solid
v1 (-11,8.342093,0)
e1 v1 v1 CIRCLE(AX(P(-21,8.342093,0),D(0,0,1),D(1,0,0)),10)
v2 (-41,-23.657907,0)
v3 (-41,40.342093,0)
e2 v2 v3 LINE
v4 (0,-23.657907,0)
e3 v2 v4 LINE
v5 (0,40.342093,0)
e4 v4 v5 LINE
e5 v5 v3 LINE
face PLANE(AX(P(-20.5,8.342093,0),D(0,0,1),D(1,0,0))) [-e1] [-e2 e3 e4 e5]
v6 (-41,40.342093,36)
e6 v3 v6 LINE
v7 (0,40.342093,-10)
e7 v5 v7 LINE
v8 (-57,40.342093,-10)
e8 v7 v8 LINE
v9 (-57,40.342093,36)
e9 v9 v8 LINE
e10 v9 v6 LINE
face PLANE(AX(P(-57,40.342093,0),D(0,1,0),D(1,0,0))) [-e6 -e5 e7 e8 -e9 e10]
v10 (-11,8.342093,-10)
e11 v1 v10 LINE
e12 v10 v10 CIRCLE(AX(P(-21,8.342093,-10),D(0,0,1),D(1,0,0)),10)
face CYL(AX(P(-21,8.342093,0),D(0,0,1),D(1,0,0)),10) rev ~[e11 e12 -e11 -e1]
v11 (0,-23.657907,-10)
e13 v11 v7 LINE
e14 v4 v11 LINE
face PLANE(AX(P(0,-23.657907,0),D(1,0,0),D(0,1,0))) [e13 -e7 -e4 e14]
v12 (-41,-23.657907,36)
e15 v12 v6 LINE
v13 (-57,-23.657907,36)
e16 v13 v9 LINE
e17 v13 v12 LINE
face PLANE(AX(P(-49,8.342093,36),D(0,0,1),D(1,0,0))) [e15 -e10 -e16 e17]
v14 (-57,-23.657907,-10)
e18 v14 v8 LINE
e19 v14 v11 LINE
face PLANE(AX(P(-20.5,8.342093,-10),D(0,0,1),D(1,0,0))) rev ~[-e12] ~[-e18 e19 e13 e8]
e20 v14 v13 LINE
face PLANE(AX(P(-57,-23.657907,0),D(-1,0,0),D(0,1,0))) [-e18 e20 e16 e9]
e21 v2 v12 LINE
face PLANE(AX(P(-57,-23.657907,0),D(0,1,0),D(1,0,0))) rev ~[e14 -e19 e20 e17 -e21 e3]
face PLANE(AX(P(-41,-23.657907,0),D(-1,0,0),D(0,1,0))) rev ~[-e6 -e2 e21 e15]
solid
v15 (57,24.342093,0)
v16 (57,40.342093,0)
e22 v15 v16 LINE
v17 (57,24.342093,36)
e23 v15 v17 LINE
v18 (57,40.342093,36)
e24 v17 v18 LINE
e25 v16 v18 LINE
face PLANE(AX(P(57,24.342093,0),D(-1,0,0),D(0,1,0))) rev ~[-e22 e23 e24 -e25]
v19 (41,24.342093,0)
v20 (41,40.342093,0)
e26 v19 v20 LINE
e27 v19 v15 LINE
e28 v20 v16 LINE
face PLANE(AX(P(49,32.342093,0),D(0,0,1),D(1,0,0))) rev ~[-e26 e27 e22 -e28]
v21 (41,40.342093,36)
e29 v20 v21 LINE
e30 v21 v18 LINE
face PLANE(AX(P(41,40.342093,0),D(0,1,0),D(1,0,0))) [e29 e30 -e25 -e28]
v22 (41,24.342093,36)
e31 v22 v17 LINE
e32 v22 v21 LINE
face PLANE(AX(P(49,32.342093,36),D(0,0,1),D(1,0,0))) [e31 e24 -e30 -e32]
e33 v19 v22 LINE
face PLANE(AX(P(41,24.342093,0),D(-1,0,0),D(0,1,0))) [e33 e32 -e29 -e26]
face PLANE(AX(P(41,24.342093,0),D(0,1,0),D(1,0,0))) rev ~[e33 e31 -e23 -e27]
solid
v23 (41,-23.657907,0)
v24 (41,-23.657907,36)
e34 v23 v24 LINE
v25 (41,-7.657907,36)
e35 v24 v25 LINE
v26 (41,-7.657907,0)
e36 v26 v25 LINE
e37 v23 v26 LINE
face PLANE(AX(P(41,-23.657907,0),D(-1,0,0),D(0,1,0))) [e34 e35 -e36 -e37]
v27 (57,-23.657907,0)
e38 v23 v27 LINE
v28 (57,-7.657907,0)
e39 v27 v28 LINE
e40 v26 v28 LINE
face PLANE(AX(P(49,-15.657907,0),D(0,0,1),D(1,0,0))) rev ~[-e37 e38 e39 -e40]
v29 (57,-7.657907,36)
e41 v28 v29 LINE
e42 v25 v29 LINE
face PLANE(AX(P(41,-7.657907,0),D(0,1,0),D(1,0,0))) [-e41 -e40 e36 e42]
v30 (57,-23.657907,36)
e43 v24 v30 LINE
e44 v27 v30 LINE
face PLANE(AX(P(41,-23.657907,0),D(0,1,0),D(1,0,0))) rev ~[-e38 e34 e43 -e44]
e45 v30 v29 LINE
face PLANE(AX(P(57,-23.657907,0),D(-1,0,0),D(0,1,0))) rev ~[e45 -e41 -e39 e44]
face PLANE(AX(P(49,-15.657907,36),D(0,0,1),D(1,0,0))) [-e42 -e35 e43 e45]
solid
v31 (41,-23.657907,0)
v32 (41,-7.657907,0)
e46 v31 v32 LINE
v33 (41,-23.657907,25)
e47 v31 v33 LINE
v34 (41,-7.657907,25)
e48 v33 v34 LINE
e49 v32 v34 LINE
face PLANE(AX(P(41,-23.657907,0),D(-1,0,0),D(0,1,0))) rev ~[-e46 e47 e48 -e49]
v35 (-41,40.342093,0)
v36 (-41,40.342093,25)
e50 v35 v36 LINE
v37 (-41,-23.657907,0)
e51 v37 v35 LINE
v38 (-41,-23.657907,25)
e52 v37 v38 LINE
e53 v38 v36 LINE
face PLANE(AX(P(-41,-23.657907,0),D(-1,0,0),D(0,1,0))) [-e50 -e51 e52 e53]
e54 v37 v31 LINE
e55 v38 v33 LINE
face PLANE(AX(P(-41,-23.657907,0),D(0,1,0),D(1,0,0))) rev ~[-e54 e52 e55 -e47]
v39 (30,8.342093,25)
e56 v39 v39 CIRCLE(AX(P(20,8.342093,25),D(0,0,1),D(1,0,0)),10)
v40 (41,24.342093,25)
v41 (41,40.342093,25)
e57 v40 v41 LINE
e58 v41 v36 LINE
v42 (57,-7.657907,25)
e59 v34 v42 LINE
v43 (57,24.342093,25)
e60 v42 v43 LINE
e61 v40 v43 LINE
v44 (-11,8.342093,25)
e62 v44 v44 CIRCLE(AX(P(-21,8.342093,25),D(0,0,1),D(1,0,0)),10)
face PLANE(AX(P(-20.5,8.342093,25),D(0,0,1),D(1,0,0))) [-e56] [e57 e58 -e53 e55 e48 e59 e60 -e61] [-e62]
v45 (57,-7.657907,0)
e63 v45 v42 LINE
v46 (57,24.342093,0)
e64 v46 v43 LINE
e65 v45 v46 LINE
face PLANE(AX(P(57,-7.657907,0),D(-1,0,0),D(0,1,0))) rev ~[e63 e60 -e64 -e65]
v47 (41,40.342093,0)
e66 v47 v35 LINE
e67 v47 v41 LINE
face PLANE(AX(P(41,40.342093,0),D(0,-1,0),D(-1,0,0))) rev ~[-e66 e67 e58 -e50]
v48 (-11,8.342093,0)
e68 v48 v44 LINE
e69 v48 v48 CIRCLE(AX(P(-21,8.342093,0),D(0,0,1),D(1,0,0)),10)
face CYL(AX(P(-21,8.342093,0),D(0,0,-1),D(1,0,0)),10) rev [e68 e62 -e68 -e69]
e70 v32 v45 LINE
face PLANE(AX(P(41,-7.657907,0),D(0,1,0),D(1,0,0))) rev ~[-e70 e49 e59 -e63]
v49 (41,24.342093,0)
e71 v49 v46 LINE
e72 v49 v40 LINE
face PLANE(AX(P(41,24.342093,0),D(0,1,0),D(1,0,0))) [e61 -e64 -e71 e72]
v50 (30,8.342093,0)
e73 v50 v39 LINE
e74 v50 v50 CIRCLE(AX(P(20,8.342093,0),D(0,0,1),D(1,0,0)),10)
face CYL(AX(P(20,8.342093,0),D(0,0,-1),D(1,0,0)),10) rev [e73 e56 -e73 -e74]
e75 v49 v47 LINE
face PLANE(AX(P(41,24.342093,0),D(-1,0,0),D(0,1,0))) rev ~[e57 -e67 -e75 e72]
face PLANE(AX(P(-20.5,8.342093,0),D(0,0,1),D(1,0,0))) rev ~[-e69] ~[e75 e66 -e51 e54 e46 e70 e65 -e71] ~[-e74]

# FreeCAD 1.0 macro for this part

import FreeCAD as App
import Part
import Sketcher
from FreeCAD import Vector
Q = App.Units.Quantity

doc = App.newDocument("Part")
body = doc.addObject("PartDesign::Body", "Body")

sketch1 = body.newObject("Sketcher::SketchObject", "Sketch")
sketch1.AttachmentSupport = (doc.getObject("XY_Plane"), [""])
sketch1.MapMode = "FlatFace"
sketch1.addGeometry([
    Part.LineSegment(Vector(0, -24, 0), Vector(0, 40, 0)),
    Part.LineSegment(Vector(0, 40, 0), Vector(-57, 40, 0)),
    Part.LineSegment(Vector(-57, 40, 0), Vector(-57, -24, 0)),
    Part.LineSegment(Vector(-57, -24, 0), Vector(0, -24, 0)),
    Part.Circle(Vector(-21, 8, 0), Vector(0, 0, 1), 10),
], False)
sketch1.addConstraint([
    Sketcher.Constraint("Coincident", 0, 2, 1, 1),
    Sketcher.Constraint("Coincident", 1, 2, 2, 1),
    Sketcher.Constraint("Coincident", 2, 2, 3, 1),
    Sketcher.Constraint("Coincident", 3, 2, 0, 1),
    Sketcher.Constraint("Vertical", 0),
    Sketcher.Constraint("Horizontal", 1),
    Sketcher.Constraint("Vertical", 2),
    Sketcher.Constraint("Horizontal", 3),
    Sketcher.Constraint("PointOnObject", 0, 2, -2),
    Sketcher.Constraint("Diameter", 4, Q("20 mm")),
    Sketcher.Constraint("DistanceX", 1, 2, 1, 1, Q("57 mm")),
    Sketcher.Constraint("DistanceY", 0, 1, 0, 2, Q("64 mm")),
    Sketcher.Constraint("DistanceX", 4, 3, -1, 1, Q("21 mm")),
    Sketcher.Constraint("DistanceY", 4, 3, 0, 2, Q("32 mm")),
    Sketcher.Constraint("DistanceY", -1, 1, 4, 3, Q("8.342093 mm")),
])
pad1 = body.newObject("PartDesign::Pad", "Pad")
pad1.Profile = sketch1
pad1.Length = 10
pad1.Reversed = True

sketch2 = body.newObject("Sketcher::SketchObject", "Sketch001")
sketch2.AttachmentSupport = (doc.getObject("XY_Plane"), [""])
sketch2.MapMode = "FlatFace"
sketch2.addGeometry([
    Part.LineSegment(Vector(-57, 40, 0), Vector(-57, -24, 0)),
    Part.LineSegment(Vector(-57, -24, 0), Vector(-41, -24, 0)),
    Part.LineSegment(Vector(-41, -24, 0), Vector(-41, 40, 0)),
    Part.LineSegment(Vector(-41, 40, 0), Vector(-57, 40, 0)),
], False)
sketch2.addConstraint([
    Sketcher.Constraint("Coincident", 0, 2, 1, 1),
    Sketcher.Constraint("Coincident", 1, 2, 2, 1),
    Sketcher.Constraint("Coincident", 2, 2, 3, 1),
    Sketcher.Constraint("Coincident", 3, 2, 0, 1),
    Sketcher.Constraint("Vertical", 0),
    Sketcher.Constraint("Horizontal", 1),
    Sketcher.Constraint("Vertical", 2),
    Sketcher.Constraint("Horizontal", 3),
    Sketcher.Constraint("DistanceX", 1, 1, 1, 2, Q("16 mm")),
    Sketcher.Constraint("DistanceY", 0, 2, 0, 1, Q("64 mm")),
    Sketcher.Constraint("DistanceX", 0, 2, -1, 1, Q("57 mm")),
    Sketcher.Constraint("DistanceY", 0, 2, -1, 1, Q("23.657907 mm")),
])
pad2 = body.newObject("PartDesign::Pad", "Pad001")
pad2.Profile = sketch2
pad2.Length = 36
body2 = doc.addObject("PartDesign::Body", "Body001")

sketch3 = body2.newObject("Sketcher::SketchObject", "Sketch002")
sketch3.AttachmentSupport = (doc.getObject("XY_Plane001"), [""])
sketch3.MapMode = "FlatFace"
sketch3.addGeometry([
    Part.LineSegment(Vector(41, 40, 0), Vector(41, 24, 0)),
    Part.LineSegment(Vector(41, 24, 0), Vector(57, 24, 0)),
    Part.LineSegment(Vector(57, 24, 0), Vector(57, 40, 0)),
    Part.LineSegment(Vector(57, 40, 0), Vector(41, 40, 0)),
], False)
sketch3.addConstraint([
    Sketcher.Constraint("Coincident", 0, 2, 1, 1),
    Sketcher.Constraint("Coincident", 1, 2, 2, 1),
    Sketcher.Constraint("Coincident", 2, 2, 3, 1),
    Sketcher.Constraint("Coincident", 3, 2, 0, 1),
    Sketcher.Constraint("Vertical", 0),
    Sketcher.Constraint("Horizontal", 1),
    Sketcher.Constraint("Vertical", 2),
    Sketcher.Constraint("Horizontal", 3),
    Sketcher.Constraint("Equal", 3, 0),
    Sketcher.Constraint("DistanceX", 1, 1, 1, 2, Q("16 mm")),
    Sketcher.Constraint("DistanceX", -1, 1, 0, 2, Q("41 mm")),
    Sketcher.Constraint("DistanceY", -1, 1, 0, 2, Q("24.342093 mm")),
])
pad3 = body2.newObject("PartDesign::Pad", "Pad002")
pad3.Profile = sketch3
pad3.Length = 36
body3 = doc.addObject("PartDesign::Body", "Body002")

sketch4 = body3.newObject("Sketcher::SketchObject", "Sketch003")
sketch4.AttachmentSupport = (doc.getObject("XY_Plane002"), [""])
sketch4.MapMode = "FlatFace"
sketch4.addGeometry([
    Part.LineSegment(Vector(41, -8, 0), Vector(41, -24, 0)),
    Part.LineSegment(Vector(41, -24, 0), Vector(57, -24, 0)),
    Part.LineSegment(Vector(57, -24, 0), Vector(57, -8, 0)),
    Part.LineSegment(Vector(57, -8, 0), Vector(41, -8, 0)),
], False)
sketch4.addConstraint([
    Sketcher.Constraint("Coincident", 0, 2, 1, 1),
    Sketcher.Constraint("Coincident", 1, 2, 2, 1),
    Sketcher.Constraint("Coincident", 2, 2, 3, 1),
    Sketcher.Constraint("Coincident", 3, 2, 0, 1),
    Sketcher.Constraint("Vertical", 0),
    Sketcher.Constraint("Horizontal", 1),
    Sketcher.Constraint("Vertical", 2),
    Sketcher.Constraint("Horizontal", 3),
    Sketcher.Constraint("Equal", 3, 0),
    Sketcher.Constraint("DistanceX", 1, 1, 1, 2, Q("16 mm")),
    Sketcher.Constraint("DistanceX", -1, 1, 0, 2, Q("41 mm")),
    Sketcher.Constraint("DistanceY", 0, 2, -1, 1, Q("23.657907 mm")),
])
pad4 = body3.newObject("PartDesign::Pad", "Pad003")
pad4.Profile = sketch4
pad4.Length = 36
body4 = doc.addObject("PartDesign::Body", "Body003")

sketch5 = body4.newObject("Sketcher::SketchObject", "Sketch004")
sketch5.AttachmentSupport = (doc.getObject("XY_Plane003"), [""])
sketch5.MapMode = "FlatFace"
sketch5.addGeometry([
    Part.LineSegment(Vector(-41, 40, 0), Vector(-41, -24, 0)),
    Part.LineSegment(Vector(-41, -24, 0), Vector(41, -24, 0)),
    Part.LineSegment(Vector(41, -24, 0), Vector(41, -8, 0)),
    Part.LineSegment(Vector(41, -8, 0), Vector(57, -8, 0)),
    Part.LineSegment(Vector(57, -8, 0), Vector(57, 24, 0)),
    Part.LineSegment(Vector(57, 24, 0), Vector(41, 24, 0)),
    Part.LineSegment(Vector(41, 24, 0), Vector(41, 40, 0)),
    Part.LineSegment(Vector(41, 40, 0), Vector(-41, 40, 0)),
    Part.Circle(Vector(-21, 8, 0), Vector(0, 0, 1), 10),
    Part.Circle(Vector(20, 8, 0), Vector(0, 0, 1), 10),
], False)
sketch5.addConstraint([
    Sketcher.Constraint("Coincident", 0, 2, 1, 1),
    Sketcher.Constraint("Coincident", 1, 2, 2, 1),
    Sketcher.Constraint("Coincident", 2, 2, 3, 1),
    Sketcher.Constraint("Coincident", 3, 2, 4, 1),
    Sketcher.Constraint("Coincident", 4, 2, 5, 1),
    Sketcher.Constraint("Coincident", 5, 2, 6, 1),
    Sketcher.Constraint("Coincident", 6, 2, 7, 1),
    Sketcher.Constraint("Coincident", 7, 2, 0, 1),
    Sketcher.Constraint("Vertical", 0),
    Sketcher.Constraint("Horizontal", 1),
    Sketcher.Constraint("Vertical", 2),
    Sketcher.Constraint("Horizontal", 3),
    Sketcher.Constraint("Vertical", 4),
    Sketcher.Constraint("Horizontal", 5),
    Sketcher.Constraint("Vertical", 6),
    Sketcher.Constraint("Horizontal", 7),
    Sketcher.Constraint("Equal", 8, 9),
    Sketcher.Constraint("Horizontal", 8, 3, 9, 3),
    Sketcher.Constraint("Vertical", 2, 2, 5, 2),
    Sketcher.Constraint("Equal", 5, 2),
    Sketcher.Constraint("Equal", 2, 6),
    Sketcher.Constraint("Diameter", 8, Q("20 mm")),
    Sketcher.Constraint("DistanceX", 1, 1, 1, 2, Q("82 mm")),
    Sketcher.Constraint("DistanceX", 3, 1, 3, 2, Q("16 mm")),
    Sketcher.Constraint("DistanceY", 0, 2, 0, 1, Q("64 mm")),
    Sketcher.Constraint("DistanceX", 8, 3, -1, 1, Q("21 mm")),
    Sketcher.Constraint("DistanceX", -1, 1, 9, 3, Q("20 mm")),
    Sketcher.Constraint("DistanceX", 0, 2, -1, 1, Q("41 mm")),
    Sketcher.Constraint("DistanceY", 0, 2, 8, 3, Q("32 mm")),
    Sketcher.Constraint("DistanceY", -1, 1, 8, 3, Q("8.342093 mm")),
])
pad5 = body4.newObject("PartDesign::Pad", "Pad004")
pad5.Profile = sketch5
pad5.Length = 25

doc.recompute()
